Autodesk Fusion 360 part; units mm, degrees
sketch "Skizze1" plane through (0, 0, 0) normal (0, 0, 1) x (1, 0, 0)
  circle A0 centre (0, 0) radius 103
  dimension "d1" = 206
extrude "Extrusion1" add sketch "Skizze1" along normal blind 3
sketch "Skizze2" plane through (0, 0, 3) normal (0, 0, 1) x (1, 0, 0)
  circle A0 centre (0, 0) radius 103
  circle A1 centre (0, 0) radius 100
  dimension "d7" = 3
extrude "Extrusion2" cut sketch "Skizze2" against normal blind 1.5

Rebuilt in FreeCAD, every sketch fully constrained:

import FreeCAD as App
import Part
import Sketcher
from FreeCAD import Vector

doc = App.newDocument("Part")
body = doc.addObject("PartDesign::Body", "Body")

# Sketch on XY plane
sketch1 = body.newObject("Sketcher::SketchObject", "Sketch")
sketch1.AttachmentSupport = (doc.getObject("XY_Plane"), [""])
sketch1.MapMode = "FlatFace"
sketch1.addGeometry(Part.Circle(Vector(0, 0, 0), Vector(0, 0, 1), 103), False)
sketch1.addConstraint([
    Sketcher.Constraint("Coincident", 0, 3, -1, 1),
    Sketcher.Constraint("Diameter", 0, 206.0),
])
pad1 = body.newObject("PartDesign::Pad", "Pad")
pad1.Profile = sketch1
pad1.Length = 3

# Sketch on XY plane
sketch2 = body.newObject("Sketcher::SketchObject", "Sketch001")
sketch2.AttachmentSupport = (doc.getObject("XY_Plane"), [""])
sketch2.MapMode = "FlatFace"
sketch2.AttachmentOffset = App.Placement(Vector(0, 0, 3), App.Rotation())
sketch2.addGeometry([
    Part.Circle(Vector(0, 0, 0), Vector(0, 0, 1), 103),
    Part.Circle(Vector(0, 0, 0), Vector(0, 0, 1), 100),
], False)
sketch2.addConstraint([
    Sketcher.Constraint("Coincident", 0, 3, -1, 1),
    Sketcher.Constraint("Coincident", 1, 3, -1, 1),
    Sketcher.Constraint("Diameter", 0, 206.0),
    Sketcher.Constraint("Diameter", 1, 200.0),
])
pocket1 = body.newObject("PartDesign::Pocket", "Pocket")
pocket1.Profile = sketch2
pocket1.Length = 1.5

doc.recompute()
